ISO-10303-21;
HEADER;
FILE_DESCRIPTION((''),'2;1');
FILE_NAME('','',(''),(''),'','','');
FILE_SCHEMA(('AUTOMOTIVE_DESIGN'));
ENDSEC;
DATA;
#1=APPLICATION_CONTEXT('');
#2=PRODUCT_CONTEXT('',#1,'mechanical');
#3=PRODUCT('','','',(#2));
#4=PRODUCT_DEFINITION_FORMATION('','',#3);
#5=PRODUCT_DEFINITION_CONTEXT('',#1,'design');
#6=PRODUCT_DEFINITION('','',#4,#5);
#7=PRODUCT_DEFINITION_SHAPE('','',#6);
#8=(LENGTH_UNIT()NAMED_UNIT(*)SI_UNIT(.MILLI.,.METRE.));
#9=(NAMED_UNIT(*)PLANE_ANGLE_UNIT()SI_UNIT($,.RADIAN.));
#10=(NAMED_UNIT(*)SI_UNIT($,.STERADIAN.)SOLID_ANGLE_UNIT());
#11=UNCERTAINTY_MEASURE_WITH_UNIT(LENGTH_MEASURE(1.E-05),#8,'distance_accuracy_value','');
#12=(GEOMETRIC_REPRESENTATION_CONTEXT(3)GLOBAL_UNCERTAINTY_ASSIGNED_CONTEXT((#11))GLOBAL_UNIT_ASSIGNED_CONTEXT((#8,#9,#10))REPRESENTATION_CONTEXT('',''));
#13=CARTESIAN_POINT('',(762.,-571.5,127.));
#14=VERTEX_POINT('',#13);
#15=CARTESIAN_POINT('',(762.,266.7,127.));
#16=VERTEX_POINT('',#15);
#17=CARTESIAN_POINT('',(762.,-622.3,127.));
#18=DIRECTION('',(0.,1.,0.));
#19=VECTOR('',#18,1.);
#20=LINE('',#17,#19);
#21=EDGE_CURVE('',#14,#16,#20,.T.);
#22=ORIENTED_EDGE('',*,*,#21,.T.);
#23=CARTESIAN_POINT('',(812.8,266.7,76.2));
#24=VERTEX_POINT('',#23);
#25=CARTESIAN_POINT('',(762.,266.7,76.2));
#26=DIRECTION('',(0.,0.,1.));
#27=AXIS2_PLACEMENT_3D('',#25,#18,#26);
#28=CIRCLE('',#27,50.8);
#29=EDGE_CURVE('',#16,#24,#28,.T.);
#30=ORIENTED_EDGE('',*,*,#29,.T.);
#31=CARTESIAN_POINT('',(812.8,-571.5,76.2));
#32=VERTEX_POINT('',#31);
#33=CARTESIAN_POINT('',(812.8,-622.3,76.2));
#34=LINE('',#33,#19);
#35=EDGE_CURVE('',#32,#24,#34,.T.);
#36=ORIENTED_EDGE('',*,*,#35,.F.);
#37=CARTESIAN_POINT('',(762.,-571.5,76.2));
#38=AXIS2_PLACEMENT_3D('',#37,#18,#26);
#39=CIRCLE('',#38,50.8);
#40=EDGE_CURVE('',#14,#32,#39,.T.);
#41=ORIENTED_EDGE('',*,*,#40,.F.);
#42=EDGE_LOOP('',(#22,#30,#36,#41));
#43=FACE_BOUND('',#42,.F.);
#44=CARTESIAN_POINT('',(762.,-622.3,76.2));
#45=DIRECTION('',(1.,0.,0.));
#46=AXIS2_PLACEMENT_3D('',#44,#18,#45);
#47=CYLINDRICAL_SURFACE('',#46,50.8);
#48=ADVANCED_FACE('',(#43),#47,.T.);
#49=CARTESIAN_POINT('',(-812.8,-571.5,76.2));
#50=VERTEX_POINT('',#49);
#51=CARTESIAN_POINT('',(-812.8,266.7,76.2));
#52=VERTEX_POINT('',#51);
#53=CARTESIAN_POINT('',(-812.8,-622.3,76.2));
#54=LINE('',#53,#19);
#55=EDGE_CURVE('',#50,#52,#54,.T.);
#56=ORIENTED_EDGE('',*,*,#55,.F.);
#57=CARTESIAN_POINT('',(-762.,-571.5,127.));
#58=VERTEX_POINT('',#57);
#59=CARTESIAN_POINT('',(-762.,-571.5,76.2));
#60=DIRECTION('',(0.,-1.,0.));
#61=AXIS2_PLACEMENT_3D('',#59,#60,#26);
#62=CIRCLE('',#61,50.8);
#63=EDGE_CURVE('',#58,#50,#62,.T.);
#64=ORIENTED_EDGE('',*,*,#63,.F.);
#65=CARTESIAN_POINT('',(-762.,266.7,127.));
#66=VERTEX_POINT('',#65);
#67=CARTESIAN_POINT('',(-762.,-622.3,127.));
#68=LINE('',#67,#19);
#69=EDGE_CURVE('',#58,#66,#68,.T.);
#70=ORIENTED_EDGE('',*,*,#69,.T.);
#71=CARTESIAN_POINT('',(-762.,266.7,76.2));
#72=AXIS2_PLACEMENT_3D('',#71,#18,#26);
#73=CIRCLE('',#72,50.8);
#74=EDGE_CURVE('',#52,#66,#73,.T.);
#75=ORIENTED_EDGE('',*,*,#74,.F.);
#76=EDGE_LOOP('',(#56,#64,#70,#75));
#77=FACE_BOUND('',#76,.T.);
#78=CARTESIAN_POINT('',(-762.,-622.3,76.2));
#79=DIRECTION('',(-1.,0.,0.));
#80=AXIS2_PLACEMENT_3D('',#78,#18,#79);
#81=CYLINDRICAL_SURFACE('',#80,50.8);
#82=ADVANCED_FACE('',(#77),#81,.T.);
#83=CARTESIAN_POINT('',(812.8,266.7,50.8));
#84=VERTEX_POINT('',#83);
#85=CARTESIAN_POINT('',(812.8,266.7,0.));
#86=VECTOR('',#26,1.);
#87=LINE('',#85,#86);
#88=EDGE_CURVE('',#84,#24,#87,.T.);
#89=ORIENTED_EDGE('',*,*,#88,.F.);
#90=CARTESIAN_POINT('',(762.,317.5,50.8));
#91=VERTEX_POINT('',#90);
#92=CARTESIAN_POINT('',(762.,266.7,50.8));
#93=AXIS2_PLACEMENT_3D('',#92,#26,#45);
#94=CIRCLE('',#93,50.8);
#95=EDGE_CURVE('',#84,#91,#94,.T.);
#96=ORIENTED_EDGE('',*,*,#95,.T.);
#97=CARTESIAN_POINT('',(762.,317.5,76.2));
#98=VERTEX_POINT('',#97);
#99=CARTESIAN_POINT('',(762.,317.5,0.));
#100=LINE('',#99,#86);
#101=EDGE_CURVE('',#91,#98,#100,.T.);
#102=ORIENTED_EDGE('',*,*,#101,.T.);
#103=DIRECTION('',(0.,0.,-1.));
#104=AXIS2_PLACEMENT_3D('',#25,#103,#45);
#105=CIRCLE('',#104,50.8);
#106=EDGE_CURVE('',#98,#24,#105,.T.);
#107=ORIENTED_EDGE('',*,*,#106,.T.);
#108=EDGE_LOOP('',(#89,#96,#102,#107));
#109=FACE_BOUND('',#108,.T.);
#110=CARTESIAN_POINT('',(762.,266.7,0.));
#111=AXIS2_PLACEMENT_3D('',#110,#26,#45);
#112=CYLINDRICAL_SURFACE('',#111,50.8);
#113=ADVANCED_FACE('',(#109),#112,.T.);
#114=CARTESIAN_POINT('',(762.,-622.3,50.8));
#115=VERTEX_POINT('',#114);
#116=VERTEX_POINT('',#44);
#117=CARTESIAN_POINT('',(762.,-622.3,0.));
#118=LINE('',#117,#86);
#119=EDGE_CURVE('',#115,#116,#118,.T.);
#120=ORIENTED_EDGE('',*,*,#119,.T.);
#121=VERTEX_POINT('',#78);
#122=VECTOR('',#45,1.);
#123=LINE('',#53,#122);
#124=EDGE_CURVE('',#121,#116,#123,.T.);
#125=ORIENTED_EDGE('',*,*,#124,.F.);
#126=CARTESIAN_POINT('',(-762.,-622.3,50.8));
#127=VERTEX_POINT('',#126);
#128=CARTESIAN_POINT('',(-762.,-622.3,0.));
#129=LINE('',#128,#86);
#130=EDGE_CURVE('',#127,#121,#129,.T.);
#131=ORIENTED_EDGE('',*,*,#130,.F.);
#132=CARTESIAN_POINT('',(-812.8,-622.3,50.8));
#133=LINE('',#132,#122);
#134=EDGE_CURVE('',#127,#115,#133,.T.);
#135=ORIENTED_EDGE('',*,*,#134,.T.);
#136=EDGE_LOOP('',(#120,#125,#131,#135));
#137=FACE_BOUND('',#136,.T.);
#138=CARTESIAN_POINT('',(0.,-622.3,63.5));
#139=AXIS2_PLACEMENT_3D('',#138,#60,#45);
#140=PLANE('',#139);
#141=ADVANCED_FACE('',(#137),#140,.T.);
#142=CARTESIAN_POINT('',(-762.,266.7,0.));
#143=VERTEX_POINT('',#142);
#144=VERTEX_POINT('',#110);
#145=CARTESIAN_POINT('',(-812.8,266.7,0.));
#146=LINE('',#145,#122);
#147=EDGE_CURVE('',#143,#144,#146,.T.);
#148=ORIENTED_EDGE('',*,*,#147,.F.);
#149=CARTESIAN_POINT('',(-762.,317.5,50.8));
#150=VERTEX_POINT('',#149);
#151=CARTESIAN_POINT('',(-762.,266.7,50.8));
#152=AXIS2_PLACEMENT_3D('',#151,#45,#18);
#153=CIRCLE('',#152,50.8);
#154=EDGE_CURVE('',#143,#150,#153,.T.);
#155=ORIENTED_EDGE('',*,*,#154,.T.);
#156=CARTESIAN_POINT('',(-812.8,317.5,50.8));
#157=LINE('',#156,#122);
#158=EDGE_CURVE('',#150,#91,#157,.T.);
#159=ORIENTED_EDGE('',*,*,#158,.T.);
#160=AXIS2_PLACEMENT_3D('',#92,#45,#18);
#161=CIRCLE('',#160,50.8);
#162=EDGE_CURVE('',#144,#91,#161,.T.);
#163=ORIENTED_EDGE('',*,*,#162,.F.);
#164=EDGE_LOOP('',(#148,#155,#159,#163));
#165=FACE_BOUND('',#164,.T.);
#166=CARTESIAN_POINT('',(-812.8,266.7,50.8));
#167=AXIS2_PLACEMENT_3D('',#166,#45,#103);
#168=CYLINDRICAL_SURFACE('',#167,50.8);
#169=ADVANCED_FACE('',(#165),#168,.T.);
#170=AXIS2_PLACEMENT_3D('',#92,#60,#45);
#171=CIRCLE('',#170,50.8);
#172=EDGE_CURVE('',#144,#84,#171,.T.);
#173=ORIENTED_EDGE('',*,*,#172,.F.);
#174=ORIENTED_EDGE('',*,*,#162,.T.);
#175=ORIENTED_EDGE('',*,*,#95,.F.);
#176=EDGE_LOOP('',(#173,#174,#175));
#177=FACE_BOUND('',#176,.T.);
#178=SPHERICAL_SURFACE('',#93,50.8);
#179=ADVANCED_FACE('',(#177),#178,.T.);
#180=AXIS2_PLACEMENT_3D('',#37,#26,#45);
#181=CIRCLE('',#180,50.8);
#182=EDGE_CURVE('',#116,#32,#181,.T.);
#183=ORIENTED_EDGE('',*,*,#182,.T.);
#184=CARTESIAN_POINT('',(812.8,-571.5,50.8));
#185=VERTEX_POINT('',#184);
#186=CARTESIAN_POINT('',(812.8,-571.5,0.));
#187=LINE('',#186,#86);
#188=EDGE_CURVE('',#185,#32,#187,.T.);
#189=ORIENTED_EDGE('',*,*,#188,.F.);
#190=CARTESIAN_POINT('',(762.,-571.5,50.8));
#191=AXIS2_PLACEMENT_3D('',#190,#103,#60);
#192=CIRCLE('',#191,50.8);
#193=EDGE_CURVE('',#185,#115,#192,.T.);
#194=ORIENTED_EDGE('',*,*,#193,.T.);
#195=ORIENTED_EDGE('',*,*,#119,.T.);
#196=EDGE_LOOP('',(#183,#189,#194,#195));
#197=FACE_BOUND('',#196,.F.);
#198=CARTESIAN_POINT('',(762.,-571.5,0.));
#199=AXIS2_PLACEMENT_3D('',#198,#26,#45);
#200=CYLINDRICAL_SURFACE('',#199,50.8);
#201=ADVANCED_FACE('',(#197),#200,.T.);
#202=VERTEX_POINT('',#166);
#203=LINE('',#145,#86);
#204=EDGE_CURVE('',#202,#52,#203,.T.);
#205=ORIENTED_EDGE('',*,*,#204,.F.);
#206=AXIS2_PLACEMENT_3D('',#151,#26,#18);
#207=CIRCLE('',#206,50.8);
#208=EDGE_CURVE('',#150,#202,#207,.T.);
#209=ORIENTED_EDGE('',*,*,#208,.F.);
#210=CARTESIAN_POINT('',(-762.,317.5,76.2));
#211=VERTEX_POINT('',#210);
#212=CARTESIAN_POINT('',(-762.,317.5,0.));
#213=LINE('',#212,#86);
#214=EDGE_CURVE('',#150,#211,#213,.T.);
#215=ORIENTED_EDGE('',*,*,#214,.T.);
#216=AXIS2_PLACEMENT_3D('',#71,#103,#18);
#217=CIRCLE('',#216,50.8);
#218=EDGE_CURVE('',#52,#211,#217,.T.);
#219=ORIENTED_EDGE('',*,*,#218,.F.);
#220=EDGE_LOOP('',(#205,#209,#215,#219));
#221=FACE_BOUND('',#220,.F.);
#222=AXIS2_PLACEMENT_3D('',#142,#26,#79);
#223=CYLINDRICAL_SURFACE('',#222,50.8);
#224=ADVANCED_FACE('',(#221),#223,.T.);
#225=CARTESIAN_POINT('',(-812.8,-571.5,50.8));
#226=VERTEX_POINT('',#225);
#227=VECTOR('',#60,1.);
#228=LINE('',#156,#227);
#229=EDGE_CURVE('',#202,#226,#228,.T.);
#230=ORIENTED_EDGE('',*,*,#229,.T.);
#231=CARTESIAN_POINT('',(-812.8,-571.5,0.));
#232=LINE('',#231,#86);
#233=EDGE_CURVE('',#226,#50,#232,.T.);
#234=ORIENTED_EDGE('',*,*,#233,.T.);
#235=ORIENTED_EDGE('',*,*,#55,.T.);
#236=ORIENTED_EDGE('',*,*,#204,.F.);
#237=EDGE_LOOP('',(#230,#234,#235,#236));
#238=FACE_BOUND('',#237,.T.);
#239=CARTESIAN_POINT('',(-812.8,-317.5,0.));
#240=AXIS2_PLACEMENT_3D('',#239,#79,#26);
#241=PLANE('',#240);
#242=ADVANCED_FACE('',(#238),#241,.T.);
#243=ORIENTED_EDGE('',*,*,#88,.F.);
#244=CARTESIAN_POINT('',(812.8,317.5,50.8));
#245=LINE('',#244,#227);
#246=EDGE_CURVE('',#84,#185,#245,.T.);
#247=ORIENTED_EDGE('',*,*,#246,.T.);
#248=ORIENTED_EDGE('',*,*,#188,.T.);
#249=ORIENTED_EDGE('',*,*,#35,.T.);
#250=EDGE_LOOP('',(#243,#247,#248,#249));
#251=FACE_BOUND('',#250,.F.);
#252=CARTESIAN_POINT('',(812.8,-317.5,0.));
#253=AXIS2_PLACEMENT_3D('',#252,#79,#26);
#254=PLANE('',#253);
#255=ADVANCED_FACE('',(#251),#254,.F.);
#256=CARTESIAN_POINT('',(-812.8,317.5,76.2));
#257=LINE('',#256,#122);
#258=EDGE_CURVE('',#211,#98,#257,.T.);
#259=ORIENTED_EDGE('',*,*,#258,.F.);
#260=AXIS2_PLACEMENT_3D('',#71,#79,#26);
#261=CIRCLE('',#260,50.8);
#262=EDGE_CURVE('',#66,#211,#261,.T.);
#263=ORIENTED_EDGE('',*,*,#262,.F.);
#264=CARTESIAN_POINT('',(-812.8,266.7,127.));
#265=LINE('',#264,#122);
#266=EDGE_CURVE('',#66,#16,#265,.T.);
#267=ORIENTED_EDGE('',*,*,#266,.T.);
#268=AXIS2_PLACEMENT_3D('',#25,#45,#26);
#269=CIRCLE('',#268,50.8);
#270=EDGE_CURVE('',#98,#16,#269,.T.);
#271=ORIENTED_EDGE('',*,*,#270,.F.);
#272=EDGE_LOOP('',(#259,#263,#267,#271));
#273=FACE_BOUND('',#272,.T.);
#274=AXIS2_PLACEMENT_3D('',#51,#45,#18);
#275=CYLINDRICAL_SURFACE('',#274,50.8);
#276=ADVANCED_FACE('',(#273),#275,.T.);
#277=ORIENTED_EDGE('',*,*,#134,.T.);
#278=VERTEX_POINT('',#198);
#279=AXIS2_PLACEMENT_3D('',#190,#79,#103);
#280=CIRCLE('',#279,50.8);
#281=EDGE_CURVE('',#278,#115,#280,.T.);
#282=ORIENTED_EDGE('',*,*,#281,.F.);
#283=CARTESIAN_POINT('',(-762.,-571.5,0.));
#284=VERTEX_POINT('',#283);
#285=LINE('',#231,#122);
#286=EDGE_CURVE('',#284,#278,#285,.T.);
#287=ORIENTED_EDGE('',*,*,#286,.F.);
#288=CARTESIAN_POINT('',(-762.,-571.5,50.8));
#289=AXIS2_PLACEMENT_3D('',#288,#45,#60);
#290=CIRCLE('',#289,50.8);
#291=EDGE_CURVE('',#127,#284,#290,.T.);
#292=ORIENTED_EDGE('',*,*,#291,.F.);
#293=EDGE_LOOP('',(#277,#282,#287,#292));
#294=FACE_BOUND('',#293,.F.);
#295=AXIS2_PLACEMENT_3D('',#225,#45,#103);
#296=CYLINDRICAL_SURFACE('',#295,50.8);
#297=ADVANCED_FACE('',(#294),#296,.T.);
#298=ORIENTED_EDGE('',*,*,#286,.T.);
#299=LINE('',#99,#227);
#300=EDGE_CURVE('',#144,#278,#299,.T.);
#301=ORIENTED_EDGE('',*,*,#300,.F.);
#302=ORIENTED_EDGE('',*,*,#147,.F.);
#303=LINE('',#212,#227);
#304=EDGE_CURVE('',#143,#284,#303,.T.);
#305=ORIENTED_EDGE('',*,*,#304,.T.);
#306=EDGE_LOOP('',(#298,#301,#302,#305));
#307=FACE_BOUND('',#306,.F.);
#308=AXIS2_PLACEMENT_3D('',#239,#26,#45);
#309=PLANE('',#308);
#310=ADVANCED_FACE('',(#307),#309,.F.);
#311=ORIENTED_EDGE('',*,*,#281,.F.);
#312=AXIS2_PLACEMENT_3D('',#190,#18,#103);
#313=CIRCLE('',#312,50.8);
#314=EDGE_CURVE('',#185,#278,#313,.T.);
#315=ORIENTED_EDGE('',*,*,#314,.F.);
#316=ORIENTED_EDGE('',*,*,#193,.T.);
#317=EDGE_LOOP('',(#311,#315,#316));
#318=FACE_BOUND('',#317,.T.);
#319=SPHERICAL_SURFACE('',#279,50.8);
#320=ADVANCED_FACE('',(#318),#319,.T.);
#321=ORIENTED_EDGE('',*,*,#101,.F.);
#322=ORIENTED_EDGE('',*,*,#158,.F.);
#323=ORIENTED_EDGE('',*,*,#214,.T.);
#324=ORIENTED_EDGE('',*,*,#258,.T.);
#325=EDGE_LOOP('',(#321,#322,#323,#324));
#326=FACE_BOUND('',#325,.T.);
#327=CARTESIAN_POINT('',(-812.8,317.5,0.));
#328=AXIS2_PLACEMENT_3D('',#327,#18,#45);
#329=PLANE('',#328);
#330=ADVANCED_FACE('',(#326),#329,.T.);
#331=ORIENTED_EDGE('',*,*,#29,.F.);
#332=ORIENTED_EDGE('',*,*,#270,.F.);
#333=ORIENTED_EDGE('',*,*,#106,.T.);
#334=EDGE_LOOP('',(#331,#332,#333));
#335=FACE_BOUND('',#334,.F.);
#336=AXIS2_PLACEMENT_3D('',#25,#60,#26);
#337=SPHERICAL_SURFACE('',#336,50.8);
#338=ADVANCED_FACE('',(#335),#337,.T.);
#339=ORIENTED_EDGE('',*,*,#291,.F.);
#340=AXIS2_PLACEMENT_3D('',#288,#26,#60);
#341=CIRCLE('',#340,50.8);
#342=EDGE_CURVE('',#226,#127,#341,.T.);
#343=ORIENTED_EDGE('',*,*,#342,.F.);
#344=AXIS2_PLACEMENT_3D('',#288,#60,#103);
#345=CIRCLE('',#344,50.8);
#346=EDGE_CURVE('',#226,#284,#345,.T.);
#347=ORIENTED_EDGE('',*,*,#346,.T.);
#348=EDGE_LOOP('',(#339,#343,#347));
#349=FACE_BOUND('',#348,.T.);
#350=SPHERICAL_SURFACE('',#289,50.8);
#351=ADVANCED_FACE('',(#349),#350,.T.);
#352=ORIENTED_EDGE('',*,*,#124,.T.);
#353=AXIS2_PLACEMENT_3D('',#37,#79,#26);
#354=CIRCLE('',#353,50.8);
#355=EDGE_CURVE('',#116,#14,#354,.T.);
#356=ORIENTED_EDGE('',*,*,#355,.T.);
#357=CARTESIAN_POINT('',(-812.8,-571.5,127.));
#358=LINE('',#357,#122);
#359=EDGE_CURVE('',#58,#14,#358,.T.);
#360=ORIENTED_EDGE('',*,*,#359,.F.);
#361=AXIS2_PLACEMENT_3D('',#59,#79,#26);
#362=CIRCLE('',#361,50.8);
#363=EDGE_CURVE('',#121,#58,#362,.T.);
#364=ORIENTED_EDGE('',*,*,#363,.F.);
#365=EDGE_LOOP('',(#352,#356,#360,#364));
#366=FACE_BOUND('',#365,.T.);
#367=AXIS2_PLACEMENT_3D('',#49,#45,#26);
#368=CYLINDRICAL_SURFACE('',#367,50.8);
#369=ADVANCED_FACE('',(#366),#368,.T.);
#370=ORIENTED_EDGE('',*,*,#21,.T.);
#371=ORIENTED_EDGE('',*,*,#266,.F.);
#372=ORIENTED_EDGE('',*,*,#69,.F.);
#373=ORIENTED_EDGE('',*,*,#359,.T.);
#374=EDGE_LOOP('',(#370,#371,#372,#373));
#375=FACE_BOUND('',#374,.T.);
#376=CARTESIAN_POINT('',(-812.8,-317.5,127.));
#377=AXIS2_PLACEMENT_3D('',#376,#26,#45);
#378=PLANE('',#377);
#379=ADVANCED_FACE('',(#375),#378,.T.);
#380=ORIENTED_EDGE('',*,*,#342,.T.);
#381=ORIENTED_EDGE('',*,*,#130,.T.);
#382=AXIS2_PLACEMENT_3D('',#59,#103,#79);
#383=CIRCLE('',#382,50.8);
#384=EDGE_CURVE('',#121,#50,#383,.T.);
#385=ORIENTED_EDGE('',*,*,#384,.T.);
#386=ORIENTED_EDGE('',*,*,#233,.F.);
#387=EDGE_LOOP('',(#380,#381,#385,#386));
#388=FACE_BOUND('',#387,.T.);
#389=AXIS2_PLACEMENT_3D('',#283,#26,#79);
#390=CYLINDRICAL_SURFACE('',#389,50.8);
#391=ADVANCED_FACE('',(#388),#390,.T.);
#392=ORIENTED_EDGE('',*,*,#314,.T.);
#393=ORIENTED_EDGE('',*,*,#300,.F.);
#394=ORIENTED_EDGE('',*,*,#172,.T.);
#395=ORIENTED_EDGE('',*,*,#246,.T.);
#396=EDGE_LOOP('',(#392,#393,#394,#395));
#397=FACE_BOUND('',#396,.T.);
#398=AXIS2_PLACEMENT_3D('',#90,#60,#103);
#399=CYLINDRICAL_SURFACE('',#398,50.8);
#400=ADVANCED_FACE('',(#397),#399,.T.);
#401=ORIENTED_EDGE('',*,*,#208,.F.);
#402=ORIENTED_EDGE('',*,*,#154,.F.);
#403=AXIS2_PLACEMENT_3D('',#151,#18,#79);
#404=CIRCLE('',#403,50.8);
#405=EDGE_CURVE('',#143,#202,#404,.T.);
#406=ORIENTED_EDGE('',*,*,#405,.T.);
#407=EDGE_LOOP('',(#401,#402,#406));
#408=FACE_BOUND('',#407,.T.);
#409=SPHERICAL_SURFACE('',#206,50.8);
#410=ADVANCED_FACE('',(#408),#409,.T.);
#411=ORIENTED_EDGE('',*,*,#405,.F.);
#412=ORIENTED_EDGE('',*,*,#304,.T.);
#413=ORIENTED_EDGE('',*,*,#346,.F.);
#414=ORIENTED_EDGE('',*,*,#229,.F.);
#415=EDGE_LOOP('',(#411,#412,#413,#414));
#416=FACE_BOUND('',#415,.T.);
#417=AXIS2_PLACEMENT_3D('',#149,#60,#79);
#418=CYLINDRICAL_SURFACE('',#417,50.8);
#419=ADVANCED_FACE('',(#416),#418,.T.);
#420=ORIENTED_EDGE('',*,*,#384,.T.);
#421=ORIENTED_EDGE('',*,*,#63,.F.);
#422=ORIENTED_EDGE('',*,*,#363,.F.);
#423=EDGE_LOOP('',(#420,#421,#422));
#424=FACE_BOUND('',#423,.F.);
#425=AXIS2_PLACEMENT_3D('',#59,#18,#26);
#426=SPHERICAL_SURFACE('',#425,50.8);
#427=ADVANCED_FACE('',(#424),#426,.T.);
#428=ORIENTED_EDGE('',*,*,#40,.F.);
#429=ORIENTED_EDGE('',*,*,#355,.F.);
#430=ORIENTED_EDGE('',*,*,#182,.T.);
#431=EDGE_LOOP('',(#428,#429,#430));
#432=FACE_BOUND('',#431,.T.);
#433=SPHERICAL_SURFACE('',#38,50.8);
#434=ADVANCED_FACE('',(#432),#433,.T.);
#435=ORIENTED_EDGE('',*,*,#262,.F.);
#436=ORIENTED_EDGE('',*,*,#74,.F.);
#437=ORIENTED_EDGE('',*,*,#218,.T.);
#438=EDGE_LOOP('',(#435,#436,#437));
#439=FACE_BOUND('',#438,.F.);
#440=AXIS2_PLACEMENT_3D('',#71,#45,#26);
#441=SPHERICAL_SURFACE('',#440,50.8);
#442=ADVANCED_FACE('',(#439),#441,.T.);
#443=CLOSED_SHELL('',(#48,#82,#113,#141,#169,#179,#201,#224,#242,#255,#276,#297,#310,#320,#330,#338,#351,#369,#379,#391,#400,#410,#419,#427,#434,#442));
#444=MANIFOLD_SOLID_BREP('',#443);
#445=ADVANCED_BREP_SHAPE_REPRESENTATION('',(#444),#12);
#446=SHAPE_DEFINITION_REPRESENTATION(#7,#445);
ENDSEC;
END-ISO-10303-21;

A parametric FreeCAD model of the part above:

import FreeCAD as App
import Part
import Sketcher
from FreeCAD import Vector
Q = App.Units.Quantity

doc = App.newDocument("Part")
body = doc.addObject("PartDesign::Body", "Body")

# Sketch on XY plane
sketch1 = body.newObject("Sketcher::SketchObject", "Sketch")
sketch1.AttachmentSupport = (doc.getObject("XY_Plane"), [""])
sketch1.MapMode = "FlatFace"
sketch1.addGeometry([
    Part.LineSegment(Vector(-813, 318, 0), Vector(-813, -318, 0)),
    Part.LineSegment(Vector(-813, -318, 0), Vector(813, -318, 0)),
    Part.LineSegment(Vector(813, -318, 0), Vector(813, 318, 0)),
    Part.LineSegment(Vector(813, 318, 0), Vector(-813, 318, 0)),
], False)
sketch1.addConstraint([
    Sketcher.Constraint("Coincident", 0, 2, 1, 1),
    Sketcher.Constraint("Coincident", 1, 2, 2, 1),
    Sketcher.Constraint("Coincident", 2, 2, 3, 1),
    Sketcher.Constraint("Coincident", 3, 2, 0, 1),
    Sketcher.Constraint("Vertical", 0),
    Sketcher.Constraint("Horizontal", 1),
    Sketcher.Constraint("Vertical", 2),
    Sketcher.Constraint("Horizontal", 3),
    Sketcher.Constraint("Symmetric", 0, 2, 2, 2, -1, 1),
    Sketcher.Constraint("DistanceX", 1, 1, 1, 2, Q("64 in")),
    Sketcher.Constraint("DistanceY", 0, 2, 0, 1, Q("25 in")),
])
pad1 = body.newObject("PartDesign::Pad", "Pad")
pad1.Profile = sketch1
pad1.Length = Q("5 in")

# Sketch on XZ plane
sketch2 = body.newObject("Sketcher::SketchObject", "Sketch001")
sketch2.AttachmentSupport = (doc.getObject("XZ_Plane"), [""])
sketch2.MapMode = "FlatFace"
sketch2.AttachmentOffset = App.Placement(Vector(0, 0, 12.5 * 25.4), App.Rotation())
sketch2.addGeometry([
    Part.LineSegment(Vector(-813, 127, 0), Vector(-813, 0, 0)),
    Part.LineSegment(Vector(-813, 0, 0), Vector(813, 0, 0)),
    Part.LineSegment(Vector(813, 0, 0), Vector(813, 127, 0)),
    Part.LineSegment(Vector(813, 127, 0), Vector(-813, 127, 0)),
], False)
sketch2.addConstraint([
    Sketcher.Constraint("Coincident", 0, 2, 1, 1),
    Sketcher.Constraint("Coincident", 1, 2, 2, 1),
    Sketcher.Constraint("Coincident", 2, 2, 3, 1),
    Sketcher.Constraint("Coincident", 3, 2, 0, 1),
    Sketcher.Constraint("Vertical", 0),
    Sketcher.Constraint("Horizontal", 1),
    Sketcher.Constraint("Vertical", 2),
    Sketcher.Constraint("Horizontal", 3),
    Sketcher.Constraint("Symmetric", 0, 2, 1, 2, -1, 1),
    Sketcher.Constraint("DistanceX", 1, 1, 1, 2, Q("64 in")),
    Sketcher.Constraint("DistanceY", 0, 2, 0, 1, Q("5 in")),
])
pad2 = body.newObject("PartDesign::Pad", "Pad001")
pad2.Profile = sketch2
pad2.Length = Q("12 in")
doc.recompute()

fillet = body.newObject("PartDesign::Fillet", "Fillet")
fillet.Base = (pad2, ["Edge1"])
fillet.UseAllEdges = True
fillet.Radius = Q("2 in")

doc.recompute()
